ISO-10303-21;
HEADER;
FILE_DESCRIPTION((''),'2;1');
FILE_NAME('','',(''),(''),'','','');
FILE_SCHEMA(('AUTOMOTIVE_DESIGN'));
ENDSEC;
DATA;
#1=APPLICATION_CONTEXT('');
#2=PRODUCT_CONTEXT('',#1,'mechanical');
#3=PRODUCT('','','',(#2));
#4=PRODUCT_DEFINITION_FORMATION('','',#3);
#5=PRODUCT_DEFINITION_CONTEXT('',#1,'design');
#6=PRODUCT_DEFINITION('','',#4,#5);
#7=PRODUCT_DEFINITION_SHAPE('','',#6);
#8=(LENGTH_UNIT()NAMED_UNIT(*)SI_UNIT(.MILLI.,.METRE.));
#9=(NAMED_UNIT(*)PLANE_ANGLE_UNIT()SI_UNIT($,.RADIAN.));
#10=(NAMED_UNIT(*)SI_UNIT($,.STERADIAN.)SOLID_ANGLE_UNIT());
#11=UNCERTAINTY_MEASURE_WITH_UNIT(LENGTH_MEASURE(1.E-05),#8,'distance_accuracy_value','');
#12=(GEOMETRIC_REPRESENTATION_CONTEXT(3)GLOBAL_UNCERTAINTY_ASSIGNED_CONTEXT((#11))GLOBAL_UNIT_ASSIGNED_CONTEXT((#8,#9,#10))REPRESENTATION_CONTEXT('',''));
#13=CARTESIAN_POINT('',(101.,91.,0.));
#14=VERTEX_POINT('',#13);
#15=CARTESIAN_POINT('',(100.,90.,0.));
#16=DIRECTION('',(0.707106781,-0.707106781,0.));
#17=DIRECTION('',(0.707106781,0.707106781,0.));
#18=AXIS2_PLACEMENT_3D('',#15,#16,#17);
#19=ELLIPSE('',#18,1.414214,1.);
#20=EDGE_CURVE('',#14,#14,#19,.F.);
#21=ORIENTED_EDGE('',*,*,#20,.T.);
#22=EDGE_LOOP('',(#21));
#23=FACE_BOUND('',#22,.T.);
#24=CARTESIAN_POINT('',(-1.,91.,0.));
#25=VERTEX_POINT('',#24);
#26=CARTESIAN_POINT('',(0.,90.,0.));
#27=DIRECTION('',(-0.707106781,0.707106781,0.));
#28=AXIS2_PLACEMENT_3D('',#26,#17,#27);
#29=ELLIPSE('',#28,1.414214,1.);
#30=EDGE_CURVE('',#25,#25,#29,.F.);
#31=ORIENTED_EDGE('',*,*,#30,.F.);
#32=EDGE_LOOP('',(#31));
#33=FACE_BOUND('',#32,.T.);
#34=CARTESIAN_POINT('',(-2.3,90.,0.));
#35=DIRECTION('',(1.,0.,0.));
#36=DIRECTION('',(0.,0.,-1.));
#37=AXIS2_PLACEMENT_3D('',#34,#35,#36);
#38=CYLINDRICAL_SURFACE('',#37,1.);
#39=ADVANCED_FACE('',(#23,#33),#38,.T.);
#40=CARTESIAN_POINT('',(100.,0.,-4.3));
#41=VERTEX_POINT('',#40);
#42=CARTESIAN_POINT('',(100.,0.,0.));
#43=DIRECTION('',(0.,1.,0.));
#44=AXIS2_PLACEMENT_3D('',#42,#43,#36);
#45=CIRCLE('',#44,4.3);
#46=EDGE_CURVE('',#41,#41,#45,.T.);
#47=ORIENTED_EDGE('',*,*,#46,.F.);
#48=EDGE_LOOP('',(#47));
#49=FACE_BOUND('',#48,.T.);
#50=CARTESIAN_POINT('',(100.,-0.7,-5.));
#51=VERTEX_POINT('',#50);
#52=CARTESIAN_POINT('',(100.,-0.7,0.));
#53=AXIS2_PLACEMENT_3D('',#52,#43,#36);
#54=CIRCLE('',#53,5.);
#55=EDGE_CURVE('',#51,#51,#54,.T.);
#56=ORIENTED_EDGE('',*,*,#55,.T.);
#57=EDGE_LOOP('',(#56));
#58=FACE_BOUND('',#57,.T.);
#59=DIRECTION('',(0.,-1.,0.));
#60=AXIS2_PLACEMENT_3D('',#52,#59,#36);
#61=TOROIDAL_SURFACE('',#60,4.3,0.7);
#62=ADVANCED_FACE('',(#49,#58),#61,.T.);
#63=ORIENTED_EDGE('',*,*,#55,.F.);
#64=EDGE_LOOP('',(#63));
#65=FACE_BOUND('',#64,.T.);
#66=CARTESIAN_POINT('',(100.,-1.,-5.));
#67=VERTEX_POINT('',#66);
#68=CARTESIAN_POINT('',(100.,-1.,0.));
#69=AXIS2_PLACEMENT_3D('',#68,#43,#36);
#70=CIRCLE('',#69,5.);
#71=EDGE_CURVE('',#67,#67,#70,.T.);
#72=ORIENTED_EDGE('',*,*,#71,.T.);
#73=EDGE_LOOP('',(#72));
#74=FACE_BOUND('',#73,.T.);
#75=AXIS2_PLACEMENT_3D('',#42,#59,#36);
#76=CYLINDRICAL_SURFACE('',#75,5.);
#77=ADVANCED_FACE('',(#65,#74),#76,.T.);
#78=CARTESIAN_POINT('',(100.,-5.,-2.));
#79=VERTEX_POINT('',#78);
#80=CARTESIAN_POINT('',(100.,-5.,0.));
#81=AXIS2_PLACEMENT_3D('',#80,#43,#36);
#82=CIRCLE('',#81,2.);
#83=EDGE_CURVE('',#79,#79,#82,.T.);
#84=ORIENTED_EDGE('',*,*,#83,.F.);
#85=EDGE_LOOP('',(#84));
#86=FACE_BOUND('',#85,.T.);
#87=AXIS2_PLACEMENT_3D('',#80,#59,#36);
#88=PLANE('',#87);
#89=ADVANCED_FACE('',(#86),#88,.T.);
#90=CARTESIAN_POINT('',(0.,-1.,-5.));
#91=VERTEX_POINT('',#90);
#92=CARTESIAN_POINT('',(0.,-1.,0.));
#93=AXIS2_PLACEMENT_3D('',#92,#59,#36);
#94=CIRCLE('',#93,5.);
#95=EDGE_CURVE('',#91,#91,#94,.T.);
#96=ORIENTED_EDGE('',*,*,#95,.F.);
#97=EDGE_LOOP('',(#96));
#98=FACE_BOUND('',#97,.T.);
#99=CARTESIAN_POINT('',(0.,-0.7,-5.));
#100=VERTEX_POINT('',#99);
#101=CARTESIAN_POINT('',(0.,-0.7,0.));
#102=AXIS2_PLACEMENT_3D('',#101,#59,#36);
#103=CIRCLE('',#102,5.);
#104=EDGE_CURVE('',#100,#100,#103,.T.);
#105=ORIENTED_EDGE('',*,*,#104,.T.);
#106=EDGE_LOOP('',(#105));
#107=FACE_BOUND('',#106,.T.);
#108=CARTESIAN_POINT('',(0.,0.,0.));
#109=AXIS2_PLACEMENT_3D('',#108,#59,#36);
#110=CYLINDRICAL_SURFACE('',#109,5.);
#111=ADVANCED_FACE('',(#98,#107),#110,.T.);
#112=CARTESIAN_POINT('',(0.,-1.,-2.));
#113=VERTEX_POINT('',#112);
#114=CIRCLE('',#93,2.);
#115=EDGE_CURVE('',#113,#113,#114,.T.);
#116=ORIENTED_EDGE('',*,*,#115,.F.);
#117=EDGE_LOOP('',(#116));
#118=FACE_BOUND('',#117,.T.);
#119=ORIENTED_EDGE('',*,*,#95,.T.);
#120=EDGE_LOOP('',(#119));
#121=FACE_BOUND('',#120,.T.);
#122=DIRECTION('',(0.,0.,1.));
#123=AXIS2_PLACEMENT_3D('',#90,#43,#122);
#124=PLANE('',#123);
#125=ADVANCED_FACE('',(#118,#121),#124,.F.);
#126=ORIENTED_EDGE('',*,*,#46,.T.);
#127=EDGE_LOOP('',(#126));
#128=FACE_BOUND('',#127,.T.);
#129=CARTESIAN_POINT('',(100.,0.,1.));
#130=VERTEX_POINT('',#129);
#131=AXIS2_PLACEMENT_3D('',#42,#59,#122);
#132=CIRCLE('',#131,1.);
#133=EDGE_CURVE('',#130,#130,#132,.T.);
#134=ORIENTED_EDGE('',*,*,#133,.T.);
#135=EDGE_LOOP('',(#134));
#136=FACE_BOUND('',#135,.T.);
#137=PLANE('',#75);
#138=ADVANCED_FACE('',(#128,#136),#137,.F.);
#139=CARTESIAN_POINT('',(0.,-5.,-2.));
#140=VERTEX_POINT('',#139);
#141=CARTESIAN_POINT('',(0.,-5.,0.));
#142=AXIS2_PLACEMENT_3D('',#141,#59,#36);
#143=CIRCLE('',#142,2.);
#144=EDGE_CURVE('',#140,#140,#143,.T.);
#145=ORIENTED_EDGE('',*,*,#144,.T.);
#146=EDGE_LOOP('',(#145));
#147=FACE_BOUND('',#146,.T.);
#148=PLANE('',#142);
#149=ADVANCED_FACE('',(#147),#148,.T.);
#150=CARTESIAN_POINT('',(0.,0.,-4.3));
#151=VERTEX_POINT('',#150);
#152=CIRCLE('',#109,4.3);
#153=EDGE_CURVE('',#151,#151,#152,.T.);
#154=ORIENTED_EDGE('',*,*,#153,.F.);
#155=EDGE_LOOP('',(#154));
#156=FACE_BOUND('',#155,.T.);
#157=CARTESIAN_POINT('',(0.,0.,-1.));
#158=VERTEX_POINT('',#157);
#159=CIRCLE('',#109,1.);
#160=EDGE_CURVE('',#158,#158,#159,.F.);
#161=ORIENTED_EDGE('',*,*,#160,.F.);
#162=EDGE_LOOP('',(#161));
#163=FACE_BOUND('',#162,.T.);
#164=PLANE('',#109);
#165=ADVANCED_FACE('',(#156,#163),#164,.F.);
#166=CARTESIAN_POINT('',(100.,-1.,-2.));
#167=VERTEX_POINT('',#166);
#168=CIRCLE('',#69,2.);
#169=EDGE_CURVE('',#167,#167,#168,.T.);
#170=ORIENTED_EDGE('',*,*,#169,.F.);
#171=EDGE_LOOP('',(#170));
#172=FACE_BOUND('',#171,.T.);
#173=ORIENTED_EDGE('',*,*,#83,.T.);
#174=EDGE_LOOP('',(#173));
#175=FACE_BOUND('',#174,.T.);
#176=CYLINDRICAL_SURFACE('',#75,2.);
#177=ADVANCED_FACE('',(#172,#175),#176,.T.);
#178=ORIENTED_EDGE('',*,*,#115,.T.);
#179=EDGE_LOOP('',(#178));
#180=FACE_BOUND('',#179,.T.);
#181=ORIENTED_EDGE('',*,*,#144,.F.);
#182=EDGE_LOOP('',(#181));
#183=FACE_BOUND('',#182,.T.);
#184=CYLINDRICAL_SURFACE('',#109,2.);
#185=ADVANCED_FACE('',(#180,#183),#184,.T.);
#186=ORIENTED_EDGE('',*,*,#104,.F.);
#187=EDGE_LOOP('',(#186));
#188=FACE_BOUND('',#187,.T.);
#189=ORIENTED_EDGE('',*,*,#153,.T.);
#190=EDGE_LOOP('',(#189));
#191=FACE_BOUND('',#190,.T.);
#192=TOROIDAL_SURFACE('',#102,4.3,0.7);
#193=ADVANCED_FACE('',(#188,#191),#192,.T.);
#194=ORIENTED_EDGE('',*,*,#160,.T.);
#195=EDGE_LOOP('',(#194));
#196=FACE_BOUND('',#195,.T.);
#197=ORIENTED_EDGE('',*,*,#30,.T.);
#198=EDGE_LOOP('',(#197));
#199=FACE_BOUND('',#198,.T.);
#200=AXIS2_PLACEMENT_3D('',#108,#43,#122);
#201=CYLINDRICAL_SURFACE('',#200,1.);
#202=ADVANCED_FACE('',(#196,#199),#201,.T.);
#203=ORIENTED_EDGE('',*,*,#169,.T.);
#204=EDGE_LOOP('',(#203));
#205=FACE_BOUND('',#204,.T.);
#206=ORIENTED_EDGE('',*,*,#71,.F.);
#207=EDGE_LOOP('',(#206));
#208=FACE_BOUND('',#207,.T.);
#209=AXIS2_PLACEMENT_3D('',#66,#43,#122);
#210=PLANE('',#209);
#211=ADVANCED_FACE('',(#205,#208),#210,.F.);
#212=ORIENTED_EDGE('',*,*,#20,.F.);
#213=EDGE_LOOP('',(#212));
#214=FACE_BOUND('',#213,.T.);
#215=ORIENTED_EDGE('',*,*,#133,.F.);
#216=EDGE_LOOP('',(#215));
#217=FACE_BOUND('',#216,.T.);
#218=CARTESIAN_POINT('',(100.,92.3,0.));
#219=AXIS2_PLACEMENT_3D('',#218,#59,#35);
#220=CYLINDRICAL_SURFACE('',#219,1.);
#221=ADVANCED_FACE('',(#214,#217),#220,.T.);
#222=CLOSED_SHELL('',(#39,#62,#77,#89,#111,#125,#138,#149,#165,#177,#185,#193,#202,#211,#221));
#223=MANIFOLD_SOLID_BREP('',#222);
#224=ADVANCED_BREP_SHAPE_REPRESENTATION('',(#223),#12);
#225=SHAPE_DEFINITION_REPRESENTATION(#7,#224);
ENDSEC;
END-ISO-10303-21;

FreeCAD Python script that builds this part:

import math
import FreeCAD as App
import Part
import Sketcher
Q = App.Units.Quantity

doc = App.newDocument("Part")
body = doc.addObject("PartDesign::Body", "Body")

sketch1 = body.newObject("Sketcher::SketchObject", "Sketch")
sketch1.AttachmentSupport = (doc.getObject("XZ_Plane"), [""])
sketch1.MapMode = "FlatFace"
sketch1.addGeometry(Part.Circle(App.Vector(0, 0, 0), App.Vector(0, 0, 1), 1), False)
sketch1.addConstraint(Sketcher.Constraint("Coincident", 0, 3, -1, 1))
sketch1.addConstraint(Sketcher.Constraint("Diameter", 0, Q("2 mm")))

sketch2 = body.newObject("Sketcher::SketchObject", "Sketch001")
sketch2.AttachmentSupport = (doc.getObject("XY_Plane"), [""])
sketch2.MapMode = "FlatFace"
sketch2.addGeometry(Part.LineSegment(App.Vector(0, 0, 0), App.Vector(0, 90, 0)), False)
sketch2.addGeometry(Part.LineSegment(App.Vector(0, 90, 0), App.Vector(100, 90, 0)), False)
sketch2.addGeometry(Part.LineSegment(App.Vector(100, 90, 0), App.Vector(100, 0, 0)), False)
sketch2.addConstraint(Sketcher.Constraint("Coincident", 0, 2, 1, 1))
sketch2.addConstraint(Sketcher.Constraint("Coincident", 1, 2, 2, 1))
sketch2.addConstraint(Sketcher.Constraint("Vertical", 0))
sketch2.addConstraint(Sketcher.Constraint("Horizontal", 1))
sketch2.addConstraint(Sketcher.Constraint("Vertical", 2))
sketch2.addConstraint(Sketcher.Constraint("Coincident", 0, 1, -1, 1))
sketch2.addConstraint(Sketcher.Constraint("PointOnObject", 2, 2, -1))
sketch2.addConstraint(Sketcher.Constraint("DistanceX", 1, 1, 1, 2, Q("100 mm")))
sketch2.addConstraint(Sketcher.Constraint("DistanceY", 0, 1, 0, 2, Q("90 mm")))
doc.recompute()

additivepipe = body.newObject("PartDesign::AdditivePipe", "AdditivePipe")
additivepipe.Profile = sketch1
additivepipe.Spine = (sketch2, ["Edge1", "Edge2", "Edge3"])
additivepipe.Transition = "Right corner"

sketch3 = body.newObject("Sketcher::SketchObject", "Sketch002")
sketch3.AttachmentSupport = (doc.getObject("YZ_Plane"), [""])
sketch3.MapMode = "FlatFace"
sketch3.addGeometry(Part.LineSegment(App.Vector(0, -4.3, 0), App.Vector(0, 0, 0)), False)
sketch3.addGeometry(Part.LineSegment(App.Vector(0, 0, 0), App.Vector(-5, 0, 0)), False)
sketch3.addGeometry(Part.LineSegment(App.Vector(-5, 0, 0), App.Vector(-5, -2, 0)), False)
sketch3.addGeometry(Part.LineSegment(App.Vector(-5, -2, 0), App.Vector(-1, -2, 0)), False)
sketch3.addGeometry(Part.LineSegment(App.Vector(-1, -2, 0), App.Vector(-1, -5, 0)), False)
sketch3.addGeometry(Part.LineSegment(App.Vector(-1, -5, 0), App.Vector(-0.7, -5, 0)), False)
sketch3.addGeometry(Part.ArcOfCircle(Part.Circle(App.Vector(-0.7, -4.3, 0), App.Vector(0, 0, 1), 0.7), math.radians(-90), math.radians(0)), False)
sketch3.addConstraint(Sketcher.Constraint("Coincident", 0, 2, 1, 1))
sketch3.addConstraint(Sketcher.Constraint("Coincident", 1, 2, 2, 1))
sketch3.addConstraint(Sketcher.Constraint("Coincident", 2, 2, 3, 1))
sketch3.addConstraint(Sketcher.Constraint("Coincident", 3, 2, 4, 1))
sketch3.addConstraint(Sketcher.Constraint("Coincident", 4, 2, 5, 1))
sketch3.addConstraint(Sketcher.Constraint("Tangent", 5, 2, 6, 1))
sketch3.addConstraint(Sketcher.Constraint("Tangent", 6, 2, 0, 1))
sketch3.addConstraint(Sketcher.Constraint("Vertical", 0))
sketch3.addConstraint(Sketcher.Constraint("Horizontal", 1))
sketch3.addConstraint(Sketcher.Constraint("Vertical", 2))
sketch3.addConstraint(Sketcher.Constraint("Horizontal", 3))
sketch3.addConstraint(Sketcher.Constraint("Vertical", 4))
sketch3.addConstraint(Sketcher.Constraint("Horizontal", 5))
sketch3.addConstraint(Sketcher.Constraint("Coincident", 0, 2, -1, 1))
sketch3.addConstraint(Sketcher.Constraint("Radius", 6, Q("0.7 mm")))
sketch3.addConstraint(Sketcher.Constraint("DistanceX", 1, 2, 1, 1, Q("5 mm")))
sketch3.addConstraint(Sketcher.Constraint("DistanceX", 3, 1, 3, 2, Q("4 mm")))
sketch3.addConstraint(Sketcher.Constraint("DistanceY", 2, 2, 2, 1, Q("2 mm")))
sketch3.addConstraint(Sketcher.Constraint("DistanceY", 4, 2, 4, 1, Q("3 mm")))
revolution = body.newObject("PartDesign::Revolution", "Revolution")
revolution.Profile = sketch3
revolution.ReferenceAxis = (sketch3, ["H_Axis"])
revolution.Angle = 360
doc.recompute()

datumplane = body.newObject("PartDesign::Plane", "DatumPlane")
datumplane.AttachmentSupport = (doc.getObject("YZ_Plane"), [""])
datumplane.MapMode = "FlatFace"
datumplane.AttachmentOffset = App.Placement(App.Vector(0, 0, 50), App.Rotation())
mirrored = body.newObject("PartDesign::Mirrored", "Mirrored")
mirrored.Originals = [revolution]
mirrored.MirrorPlane = (datumplane, [""])
body.Tip = mirrored

doc.recompute()
